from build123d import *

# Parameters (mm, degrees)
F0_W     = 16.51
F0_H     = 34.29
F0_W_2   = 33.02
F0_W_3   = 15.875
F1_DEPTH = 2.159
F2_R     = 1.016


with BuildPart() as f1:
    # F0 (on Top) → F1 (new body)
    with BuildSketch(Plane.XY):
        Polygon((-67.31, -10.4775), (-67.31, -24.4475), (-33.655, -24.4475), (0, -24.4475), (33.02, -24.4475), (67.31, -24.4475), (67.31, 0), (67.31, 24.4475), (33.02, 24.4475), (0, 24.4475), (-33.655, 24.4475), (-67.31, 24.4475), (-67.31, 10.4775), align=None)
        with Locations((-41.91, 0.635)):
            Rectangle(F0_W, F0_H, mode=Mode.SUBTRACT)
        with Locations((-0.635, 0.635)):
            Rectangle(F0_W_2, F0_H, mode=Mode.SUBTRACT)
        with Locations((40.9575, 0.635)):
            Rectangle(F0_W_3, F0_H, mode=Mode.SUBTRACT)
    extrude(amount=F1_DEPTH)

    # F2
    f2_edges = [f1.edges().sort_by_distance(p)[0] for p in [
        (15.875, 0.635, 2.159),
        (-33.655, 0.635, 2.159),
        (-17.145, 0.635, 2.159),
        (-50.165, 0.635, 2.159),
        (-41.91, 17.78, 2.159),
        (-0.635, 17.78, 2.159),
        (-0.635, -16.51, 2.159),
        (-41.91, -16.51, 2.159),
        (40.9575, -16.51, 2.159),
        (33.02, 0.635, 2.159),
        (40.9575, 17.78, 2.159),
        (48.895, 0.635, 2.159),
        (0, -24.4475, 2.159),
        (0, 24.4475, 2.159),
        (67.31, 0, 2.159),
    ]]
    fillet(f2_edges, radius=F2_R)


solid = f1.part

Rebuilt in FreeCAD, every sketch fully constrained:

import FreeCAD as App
import Part
import Sketcher
from FreeCAD import Vector
Q = App.Units.Quantity


def edges_at(feature, points):
    """Names of the edges that pass closest to the given points."""
    edges = feature.Shape.Edges
    near = lambda p: min(range(len(edges)), key=lambda i: edges[i].distToShape(Part.Vertex(*p))[0])
    return sorted({f"Edge{near(p) + 1}" for p in points})


def add_polygon(sketch, points):
    """Adds a closed chain of lines whose ends are joined by coincident constraints."""
    first, n = sketch.GeometryCount, len(points)
    for a, b in zip(points, points[1:] + points[:1]):
        sketch.addGeometry(Part.LineSegment(App.Vector(*a, 0), App.Vector(*b, 0)), False)
    for i in range(n):
        sketch.addConstraint(Sketcher.Constraint("Coincident", first + i, 2, first + (i + 1) % n, 1))

doc = App.newDocument("Part")
params = doc.addObject("Spreadsheet::Sheet", "Params")
for row, (alias, value) in enumerate([
    ("sketch1_width", "5.3 in"),
    ("sketch1_width2", "1.3 in"),
    ("sketch1_width3", "0.65 in"),
    ("sketch1_height", "1.35 in"),
    ("sketch1_width4", "0.625 in"),
    ("pad1_length", "0.085 in"),
    ("fillet_radius", "0.04 in"),
], start=1):
    params.set(f"A{row}", alias)
    params.set(f"B{row}", "=" + value)
    params.setAlias(f"B{row}", alias)

body = doc.addObject("PartDesign::Body", "Body")

# Sketch on XY plane
sketch1 = body.newObject("Sketcher::SketchObject", "Sketch")
sketch1.AttachmentSupport = (doc.getObject("XY_Plane"), [""])
sketch1.MapMode = "FlatFace"
add_polygon(sketch1, [(-67, -24), (67, -24), (67, 24), (-67, 24)])  # lines 0-3
add_polygon(sketch1, [(-34, -17), (-50, -17), (-50, 18), (-34, 18)])  # lines 4-7
add_polygon(sketch1, [(16, -17), (-17, -17), (-17, 18), (16, 18)])  # lines 8-11
add_polygon(sketch1, [(49, -17), (33, -17), (33, 18), (49, 18)])  # lines 12-15
sketch1.addConstraint([
    Sketcher.Constraint("Horizontal", 0),
    Sketcher.Constraint("Vertical", 1),
    Sketcher.Constraint("Horizontal", 2),
    Sketcher.Constraint("Vertical", 3),
    Sketcher.Constraint("Horizontal", 4),
    Sketcher.Constraint("Vertical", 5),
    Sketcher.Constraint("Horizontal", 6),
    Sketcher.Constraint("Vertical", 7),
    Sketcher.Constraint("Horizontal", 8),
    Sketcher.Constraint("Vertical", 9),
    Sketcher.Constraint("Horizontal", 10),
    Sketcher.Constraint("Vertical", 11),
    Sketcher.Constraint("Horizontal", 12),
    Sketcher.Constraint("Vertical", 13),
    Sketcher.Constraint("Horizontal", 14),
    Sketcher.Constraint("Vertical", 15),
    Sketcher.Constraint("Symmetric", 0, 2, 2, 2, -1, 1),
    Sketcher.Constraint("Horizontal", 7, 2, 8, 2),
    Sketcher.Constraint("Horizontal", 6, 2, 9, 2),
    Sketcher.Constraint("Horizontal", 11, 2, 12, 2),
    Sketcher.Constraint("Horizontal", 10, 2, 13, 2),
    Sketcher.Constraint("DistanceX", 0, 1, 0, 2, Q("5.3 in")),
    Sketcher.Constraint("DistanceX", 8, 2, 8, 1, Q("1.3 in")),
    Sketcher.Constraint("DistanceX", 4, 2, 4, 1, Q("0.65 in")),
    Sketcher.Constraint("DistanceY", 5, 1, 5, 2, Q("1.35 in")),
    Sketcher.Constraint("DistanceY", -1, 1, 5, 2, Q("0.7 in")),
    Sketcher.Constraint("DistanceX", -1, 1, 12, 2, Q("1.3 in")),
    Sketcher.Constraint("DistanceX", 4, 2, 8, 2, Q("1.3 in")),
    Sketcher.Constraint("DistanceX", 10, 2, 14, 2, Q("1.3 in")),
    Sketcher.Constraint("DistanceX", 12, 2, 12, 1, Q("0.625 in")),
    Sketcher.Constraint("DistanceY", 1, 1, 1, 2, Q("1.925 in")),
])
sketch1.setExpression("Constraints[37]", "Params.sketch1_width")
sketch1.setExpression("Constraints[38]", "Params.sketch1_width2")
sketch1.setExpression("Constraints[39]", "Params.sketch1_width3")
sketch1.setExpression("Constraints[40]", "Params.sketch1_height")
sketch1.setExpression("Constraints[45]", "Params.sketch1_width4")
pad1 = body.newObject("PartDesign::Pad", "Pad")
pad1.Profile = sketch1
pad1.setExpression("Length", "Params.pad1_length")
doc.recompute()

fillet = body.newObject("PartDesign::Fillet", "Fillet")
fillet.Base = (pad1, edges_at(pad1, [
    (15.875, 0.635, 2.159),
    (-33.655, 0.635, 2.159),
    (-17.145, 0.635, 2.159),
    (-50.165, 0.635, 2.159),
    (-41.91, 17.78, 2.159),
    (-0.635, 17.78, 2.159),
    (-0.635, -16.51, 2.159),
    (-41.91, -16.51, 2.159),
    (40.958, -16.51, 2.159),
    (33.02, 0.635, 2.159),
    (40.958, 17.78, 2.159),
    (48.895, 0.635, 2.159),
    (0, -24.448, 2.159),
    (0, 24.448, 2.159),
    (67.31, 0, 2.159),
]))
fillet.setExpression("Radius", "Params.fillet_radius")

doc.recompute()
